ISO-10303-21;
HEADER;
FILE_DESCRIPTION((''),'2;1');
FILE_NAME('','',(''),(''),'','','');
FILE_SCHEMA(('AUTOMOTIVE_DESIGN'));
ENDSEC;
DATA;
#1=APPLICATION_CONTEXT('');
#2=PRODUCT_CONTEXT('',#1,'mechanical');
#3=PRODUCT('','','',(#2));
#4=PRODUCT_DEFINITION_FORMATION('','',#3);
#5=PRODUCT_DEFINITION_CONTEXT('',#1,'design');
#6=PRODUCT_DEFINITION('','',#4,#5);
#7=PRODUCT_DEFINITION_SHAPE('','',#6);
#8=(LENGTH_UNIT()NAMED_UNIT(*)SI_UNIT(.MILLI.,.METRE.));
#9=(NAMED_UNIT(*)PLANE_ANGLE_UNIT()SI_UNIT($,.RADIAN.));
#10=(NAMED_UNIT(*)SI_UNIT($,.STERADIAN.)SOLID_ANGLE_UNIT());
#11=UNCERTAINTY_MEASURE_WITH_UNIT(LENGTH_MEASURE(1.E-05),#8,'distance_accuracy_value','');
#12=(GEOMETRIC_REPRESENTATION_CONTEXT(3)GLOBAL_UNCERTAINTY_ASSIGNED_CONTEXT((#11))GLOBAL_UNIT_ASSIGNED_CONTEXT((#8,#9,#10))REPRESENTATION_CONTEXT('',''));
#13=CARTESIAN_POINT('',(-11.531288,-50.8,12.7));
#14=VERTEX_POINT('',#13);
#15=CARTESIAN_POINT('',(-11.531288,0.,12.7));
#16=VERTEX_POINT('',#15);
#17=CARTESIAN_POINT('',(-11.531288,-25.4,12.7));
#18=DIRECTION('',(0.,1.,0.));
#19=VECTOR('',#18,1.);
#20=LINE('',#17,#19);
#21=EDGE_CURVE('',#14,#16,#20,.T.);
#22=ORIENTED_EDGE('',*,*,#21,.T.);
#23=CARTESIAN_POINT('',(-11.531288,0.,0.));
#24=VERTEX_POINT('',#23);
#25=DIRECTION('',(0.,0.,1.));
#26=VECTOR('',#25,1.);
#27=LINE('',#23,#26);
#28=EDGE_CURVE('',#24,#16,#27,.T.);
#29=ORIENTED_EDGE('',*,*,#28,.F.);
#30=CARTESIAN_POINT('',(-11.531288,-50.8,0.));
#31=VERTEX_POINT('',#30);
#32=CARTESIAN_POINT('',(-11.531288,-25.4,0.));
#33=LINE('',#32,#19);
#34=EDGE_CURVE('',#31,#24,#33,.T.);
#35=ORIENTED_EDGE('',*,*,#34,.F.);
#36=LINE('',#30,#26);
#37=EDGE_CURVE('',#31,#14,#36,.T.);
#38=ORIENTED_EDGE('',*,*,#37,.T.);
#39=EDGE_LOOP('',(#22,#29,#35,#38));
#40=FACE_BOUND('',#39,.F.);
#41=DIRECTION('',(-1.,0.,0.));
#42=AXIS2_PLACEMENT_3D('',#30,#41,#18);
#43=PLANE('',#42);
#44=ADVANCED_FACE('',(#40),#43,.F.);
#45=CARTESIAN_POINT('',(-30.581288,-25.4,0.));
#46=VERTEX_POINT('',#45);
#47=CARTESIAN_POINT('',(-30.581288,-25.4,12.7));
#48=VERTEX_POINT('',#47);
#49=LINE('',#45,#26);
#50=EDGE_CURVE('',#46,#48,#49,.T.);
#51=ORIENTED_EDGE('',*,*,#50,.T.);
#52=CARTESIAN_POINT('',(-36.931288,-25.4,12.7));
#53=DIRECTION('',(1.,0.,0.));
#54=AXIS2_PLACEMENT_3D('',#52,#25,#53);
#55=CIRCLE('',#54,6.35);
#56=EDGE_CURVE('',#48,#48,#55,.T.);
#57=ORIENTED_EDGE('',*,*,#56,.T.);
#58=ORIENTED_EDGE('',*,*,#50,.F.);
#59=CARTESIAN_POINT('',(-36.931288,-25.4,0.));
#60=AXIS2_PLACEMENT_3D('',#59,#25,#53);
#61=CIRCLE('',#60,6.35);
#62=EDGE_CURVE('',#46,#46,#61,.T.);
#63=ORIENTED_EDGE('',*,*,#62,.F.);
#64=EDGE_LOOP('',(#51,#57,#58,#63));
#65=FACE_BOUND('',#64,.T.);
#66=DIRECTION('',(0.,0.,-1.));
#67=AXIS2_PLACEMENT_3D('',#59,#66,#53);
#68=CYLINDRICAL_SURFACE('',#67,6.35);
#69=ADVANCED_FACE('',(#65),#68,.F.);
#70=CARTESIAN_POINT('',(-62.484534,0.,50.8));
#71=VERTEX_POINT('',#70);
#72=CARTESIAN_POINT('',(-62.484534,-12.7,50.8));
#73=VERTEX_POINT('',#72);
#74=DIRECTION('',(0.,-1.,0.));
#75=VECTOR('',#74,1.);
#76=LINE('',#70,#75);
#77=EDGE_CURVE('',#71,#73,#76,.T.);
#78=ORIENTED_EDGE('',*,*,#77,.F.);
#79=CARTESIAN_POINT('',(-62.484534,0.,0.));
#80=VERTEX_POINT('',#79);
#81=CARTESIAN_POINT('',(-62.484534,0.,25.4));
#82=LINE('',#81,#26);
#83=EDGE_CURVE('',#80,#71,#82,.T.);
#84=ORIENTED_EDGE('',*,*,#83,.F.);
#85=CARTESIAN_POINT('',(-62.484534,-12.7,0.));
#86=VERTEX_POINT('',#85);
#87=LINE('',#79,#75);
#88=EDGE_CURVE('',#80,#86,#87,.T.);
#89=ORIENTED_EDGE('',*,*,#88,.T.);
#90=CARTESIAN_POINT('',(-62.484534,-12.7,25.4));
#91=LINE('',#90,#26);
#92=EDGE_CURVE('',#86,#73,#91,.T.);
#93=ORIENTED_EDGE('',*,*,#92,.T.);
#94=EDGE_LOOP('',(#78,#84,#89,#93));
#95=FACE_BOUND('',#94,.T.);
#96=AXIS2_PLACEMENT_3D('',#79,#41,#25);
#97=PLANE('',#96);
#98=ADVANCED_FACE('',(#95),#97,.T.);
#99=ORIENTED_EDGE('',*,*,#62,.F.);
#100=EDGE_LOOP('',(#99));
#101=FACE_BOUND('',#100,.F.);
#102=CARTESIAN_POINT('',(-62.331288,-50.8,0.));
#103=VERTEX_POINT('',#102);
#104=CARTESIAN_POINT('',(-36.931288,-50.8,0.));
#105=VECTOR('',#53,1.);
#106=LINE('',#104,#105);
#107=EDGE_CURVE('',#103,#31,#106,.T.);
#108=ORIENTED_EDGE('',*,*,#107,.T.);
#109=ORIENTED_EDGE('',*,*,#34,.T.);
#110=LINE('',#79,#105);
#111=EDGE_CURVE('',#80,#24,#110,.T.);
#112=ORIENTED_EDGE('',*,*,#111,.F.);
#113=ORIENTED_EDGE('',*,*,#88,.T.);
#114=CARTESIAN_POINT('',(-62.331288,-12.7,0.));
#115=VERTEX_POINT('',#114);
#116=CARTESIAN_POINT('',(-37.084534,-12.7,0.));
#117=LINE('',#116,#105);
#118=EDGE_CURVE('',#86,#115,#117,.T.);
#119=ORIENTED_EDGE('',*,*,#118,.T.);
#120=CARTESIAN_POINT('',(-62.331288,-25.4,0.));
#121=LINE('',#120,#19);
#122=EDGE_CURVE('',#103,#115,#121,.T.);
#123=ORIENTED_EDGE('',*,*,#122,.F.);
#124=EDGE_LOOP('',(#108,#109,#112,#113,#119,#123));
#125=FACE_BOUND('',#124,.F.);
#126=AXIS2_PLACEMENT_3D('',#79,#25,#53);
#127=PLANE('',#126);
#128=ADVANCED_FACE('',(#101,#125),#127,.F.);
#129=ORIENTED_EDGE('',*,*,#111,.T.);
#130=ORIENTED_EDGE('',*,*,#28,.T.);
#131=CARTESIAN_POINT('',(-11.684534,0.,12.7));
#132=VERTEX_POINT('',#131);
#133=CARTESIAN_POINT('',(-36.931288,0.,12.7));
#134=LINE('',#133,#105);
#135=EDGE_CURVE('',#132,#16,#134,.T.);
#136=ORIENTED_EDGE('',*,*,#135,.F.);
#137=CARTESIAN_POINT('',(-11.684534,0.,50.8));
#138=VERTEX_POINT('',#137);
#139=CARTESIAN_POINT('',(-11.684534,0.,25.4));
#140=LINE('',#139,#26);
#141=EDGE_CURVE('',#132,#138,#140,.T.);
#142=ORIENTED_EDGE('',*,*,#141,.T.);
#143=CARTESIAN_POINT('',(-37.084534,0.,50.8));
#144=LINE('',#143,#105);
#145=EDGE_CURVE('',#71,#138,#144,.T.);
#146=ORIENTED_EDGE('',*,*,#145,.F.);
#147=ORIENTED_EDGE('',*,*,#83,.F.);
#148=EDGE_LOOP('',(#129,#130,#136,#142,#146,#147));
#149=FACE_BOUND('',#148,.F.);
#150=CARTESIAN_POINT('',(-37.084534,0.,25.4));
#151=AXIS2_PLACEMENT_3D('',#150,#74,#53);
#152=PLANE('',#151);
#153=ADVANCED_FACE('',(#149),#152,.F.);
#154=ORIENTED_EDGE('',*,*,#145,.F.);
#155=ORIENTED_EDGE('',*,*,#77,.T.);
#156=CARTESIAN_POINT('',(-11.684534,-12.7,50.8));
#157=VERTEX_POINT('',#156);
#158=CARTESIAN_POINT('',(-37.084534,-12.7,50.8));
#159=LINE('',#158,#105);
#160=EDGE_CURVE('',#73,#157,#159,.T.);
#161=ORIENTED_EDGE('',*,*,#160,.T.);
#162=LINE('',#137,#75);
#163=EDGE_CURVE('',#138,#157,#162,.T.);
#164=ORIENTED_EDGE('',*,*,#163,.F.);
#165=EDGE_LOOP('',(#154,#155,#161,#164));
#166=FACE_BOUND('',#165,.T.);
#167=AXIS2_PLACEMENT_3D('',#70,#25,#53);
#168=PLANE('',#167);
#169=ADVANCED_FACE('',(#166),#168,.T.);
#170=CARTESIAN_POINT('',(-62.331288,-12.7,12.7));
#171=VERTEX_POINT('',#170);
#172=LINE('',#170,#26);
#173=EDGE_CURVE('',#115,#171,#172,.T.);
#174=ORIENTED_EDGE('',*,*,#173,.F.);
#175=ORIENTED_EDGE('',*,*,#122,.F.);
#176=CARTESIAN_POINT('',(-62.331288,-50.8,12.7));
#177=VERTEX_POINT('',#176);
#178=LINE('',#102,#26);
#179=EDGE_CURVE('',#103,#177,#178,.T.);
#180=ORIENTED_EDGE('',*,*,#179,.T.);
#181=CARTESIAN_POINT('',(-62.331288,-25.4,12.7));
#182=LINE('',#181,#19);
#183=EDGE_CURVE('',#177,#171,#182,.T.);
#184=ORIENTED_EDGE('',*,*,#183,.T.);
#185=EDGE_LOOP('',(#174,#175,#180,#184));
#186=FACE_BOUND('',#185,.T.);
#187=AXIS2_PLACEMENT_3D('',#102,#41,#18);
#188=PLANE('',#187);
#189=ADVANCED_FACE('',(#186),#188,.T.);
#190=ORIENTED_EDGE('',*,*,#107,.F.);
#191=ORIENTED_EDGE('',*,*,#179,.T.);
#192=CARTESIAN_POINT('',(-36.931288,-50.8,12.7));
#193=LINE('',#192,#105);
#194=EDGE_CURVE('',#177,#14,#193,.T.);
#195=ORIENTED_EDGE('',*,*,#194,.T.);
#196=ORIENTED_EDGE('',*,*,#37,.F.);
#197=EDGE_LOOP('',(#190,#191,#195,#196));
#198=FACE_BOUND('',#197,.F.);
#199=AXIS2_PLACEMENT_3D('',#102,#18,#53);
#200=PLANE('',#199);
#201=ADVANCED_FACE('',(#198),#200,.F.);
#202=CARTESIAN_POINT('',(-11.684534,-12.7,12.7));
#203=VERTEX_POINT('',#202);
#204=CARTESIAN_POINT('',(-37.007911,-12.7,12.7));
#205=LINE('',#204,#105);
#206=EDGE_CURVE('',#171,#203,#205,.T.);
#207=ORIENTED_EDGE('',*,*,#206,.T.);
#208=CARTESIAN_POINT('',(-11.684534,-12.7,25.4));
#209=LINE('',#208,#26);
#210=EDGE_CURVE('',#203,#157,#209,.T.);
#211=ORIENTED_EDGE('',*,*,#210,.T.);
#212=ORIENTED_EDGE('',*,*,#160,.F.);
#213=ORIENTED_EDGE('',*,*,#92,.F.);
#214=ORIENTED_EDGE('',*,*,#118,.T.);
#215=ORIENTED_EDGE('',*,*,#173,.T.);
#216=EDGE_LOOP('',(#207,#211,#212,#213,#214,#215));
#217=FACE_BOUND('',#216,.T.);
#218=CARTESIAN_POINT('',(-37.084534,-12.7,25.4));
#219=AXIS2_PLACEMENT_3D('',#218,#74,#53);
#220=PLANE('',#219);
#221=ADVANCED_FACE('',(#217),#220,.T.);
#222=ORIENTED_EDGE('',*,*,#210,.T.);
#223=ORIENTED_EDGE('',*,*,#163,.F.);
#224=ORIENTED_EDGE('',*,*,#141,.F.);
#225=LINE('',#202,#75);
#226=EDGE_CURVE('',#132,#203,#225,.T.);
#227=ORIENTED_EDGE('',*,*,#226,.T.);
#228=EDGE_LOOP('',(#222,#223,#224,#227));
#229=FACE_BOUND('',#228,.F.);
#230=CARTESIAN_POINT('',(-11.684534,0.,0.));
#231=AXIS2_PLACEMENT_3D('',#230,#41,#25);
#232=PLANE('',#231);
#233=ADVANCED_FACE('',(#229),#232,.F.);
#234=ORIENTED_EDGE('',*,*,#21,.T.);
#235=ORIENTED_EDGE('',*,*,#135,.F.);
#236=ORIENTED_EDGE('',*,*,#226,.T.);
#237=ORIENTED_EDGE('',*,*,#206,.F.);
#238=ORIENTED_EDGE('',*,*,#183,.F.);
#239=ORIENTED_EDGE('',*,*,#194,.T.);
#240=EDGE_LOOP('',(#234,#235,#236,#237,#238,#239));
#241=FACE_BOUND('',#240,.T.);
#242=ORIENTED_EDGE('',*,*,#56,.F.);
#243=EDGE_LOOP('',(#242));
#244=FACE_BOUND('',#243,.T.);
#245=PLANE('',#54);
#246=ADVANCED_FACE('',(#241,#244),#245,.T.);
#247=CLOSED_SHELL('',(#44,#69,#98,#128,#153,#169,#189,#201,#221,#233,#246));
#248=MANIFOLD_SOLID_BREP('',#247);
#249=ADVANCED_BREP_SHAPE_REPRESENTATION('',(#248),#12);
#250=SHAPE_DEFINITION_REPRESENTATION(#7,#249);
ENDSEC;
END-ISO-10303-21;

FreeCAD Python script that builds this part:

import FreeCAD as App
import Part
import Sketcher

V = App.Vector
Q = App.Units.Quantity


def add_polygon(sketch, points):
    """Adds a closed chain of lines whose ends are joined by coincident constraints."""
    first, n = sketch.GeometryCount, len(points)
    for a, b in zip(points, points[1:] + points[:1]):
        sketch.addGeometry(Part.LineSegment(App.Vector(*a, 0), App.Vector(*b, 0)), False)
    for i in range(n):
        sketch.addConstraint(Sketcher.Constraint("Coincident", first + i, 2, first + (i + 1) % n, 1))

doc = App.newDocument("Part")
body = doc.addObject("PartDesign::Body", "Body")

# Sketch on XY plane
sketch1 = body.newObject("Sketcher::SketchObject", "Sketch")
sketch1.AttachmentSupport = (doc.getObject("XY_Plane"), [""])
sketch1.MapMode = "FlatFace"
add_polygon(sketch1, [(-62, 0), (-62, -51), (-12, -51), (-12, 0)])  # lines 0-3
sketch1.addGeometry(Part.Circle(V(-37, -25, 0), V(0, 0, 1), 6), False)  # 4
sketch1.addConstraint([
    Sketcher.Constraint("Vertical", 0),
    Sketcher.Constraint("Horizontal", 1),
    Sketcher.Constraint("Vertical", 2),
    Sketcher.Constraint("Horizontal", 3),
    Sketcher.Constraint("PointOnObject", 2, 2, -1),
    Sketcher.Constraint("Equal", 3, 0),
    Sketcher.Constraint("Diameter", 4, Q("0.5 in")),
    Sketcher.Constraint("DistanceX", 1, 1, 1, 2, Q("2 in")),
    Sketcher.Constraint("DistanceY", 4, 3, -1, 1, Q("1 in")),
    Sketcher.Constraint("DistanceX", 0, 2, 4, 3, Q("1 in")),
    Sketcher.Constraint("DistanceX", 4, 3, -1, 1, 36.931288),
])
pad1 = body.newObject("PartDesign::Pad", "Pad")
pad1.Profile = sketch1
pad1.Length = Q("0.5 in")

# Sketch on XZ plane
sketch2 = body.newObject("Sketcher::SketchObject", "Sketch001")
sketch2.AttachmentSupport = (doc.getObject("XZ_Plane"), [""])
sketch2.MapMode = "FlatFace"
add_polygon(sketch2, [(-62, 51), (-62, 0), (-12, 0), (-12, 51)])  # lines 0-3
sketch2.addConstraint([
    Sketcher.Constraint("Vertical", 0),
    Sketcher.Constraint("Horizontal", 1),
    Sketcher.Constraint("Vertical", 2),
    Sketcher.Constraint("Horizontal", 3),
    Sketcher.Constraint("PointOnObject", 0, 2, -1),
    Sketcher.Constraint("Equal", 3, 0),
    Sketcher.Constraint("DistanceX", 1, 1, 1, 2, Q("2 in")),
    Sketcher.Constraint("DistanceX", 0, 2, -1, 1, 62.484534),
])
pad2 = body.newObject("PartDesign::Pad", "Pad001")
pad2.Profile = sketch2
pad2.Length = Q("0.5 in")

doc.recompute()
